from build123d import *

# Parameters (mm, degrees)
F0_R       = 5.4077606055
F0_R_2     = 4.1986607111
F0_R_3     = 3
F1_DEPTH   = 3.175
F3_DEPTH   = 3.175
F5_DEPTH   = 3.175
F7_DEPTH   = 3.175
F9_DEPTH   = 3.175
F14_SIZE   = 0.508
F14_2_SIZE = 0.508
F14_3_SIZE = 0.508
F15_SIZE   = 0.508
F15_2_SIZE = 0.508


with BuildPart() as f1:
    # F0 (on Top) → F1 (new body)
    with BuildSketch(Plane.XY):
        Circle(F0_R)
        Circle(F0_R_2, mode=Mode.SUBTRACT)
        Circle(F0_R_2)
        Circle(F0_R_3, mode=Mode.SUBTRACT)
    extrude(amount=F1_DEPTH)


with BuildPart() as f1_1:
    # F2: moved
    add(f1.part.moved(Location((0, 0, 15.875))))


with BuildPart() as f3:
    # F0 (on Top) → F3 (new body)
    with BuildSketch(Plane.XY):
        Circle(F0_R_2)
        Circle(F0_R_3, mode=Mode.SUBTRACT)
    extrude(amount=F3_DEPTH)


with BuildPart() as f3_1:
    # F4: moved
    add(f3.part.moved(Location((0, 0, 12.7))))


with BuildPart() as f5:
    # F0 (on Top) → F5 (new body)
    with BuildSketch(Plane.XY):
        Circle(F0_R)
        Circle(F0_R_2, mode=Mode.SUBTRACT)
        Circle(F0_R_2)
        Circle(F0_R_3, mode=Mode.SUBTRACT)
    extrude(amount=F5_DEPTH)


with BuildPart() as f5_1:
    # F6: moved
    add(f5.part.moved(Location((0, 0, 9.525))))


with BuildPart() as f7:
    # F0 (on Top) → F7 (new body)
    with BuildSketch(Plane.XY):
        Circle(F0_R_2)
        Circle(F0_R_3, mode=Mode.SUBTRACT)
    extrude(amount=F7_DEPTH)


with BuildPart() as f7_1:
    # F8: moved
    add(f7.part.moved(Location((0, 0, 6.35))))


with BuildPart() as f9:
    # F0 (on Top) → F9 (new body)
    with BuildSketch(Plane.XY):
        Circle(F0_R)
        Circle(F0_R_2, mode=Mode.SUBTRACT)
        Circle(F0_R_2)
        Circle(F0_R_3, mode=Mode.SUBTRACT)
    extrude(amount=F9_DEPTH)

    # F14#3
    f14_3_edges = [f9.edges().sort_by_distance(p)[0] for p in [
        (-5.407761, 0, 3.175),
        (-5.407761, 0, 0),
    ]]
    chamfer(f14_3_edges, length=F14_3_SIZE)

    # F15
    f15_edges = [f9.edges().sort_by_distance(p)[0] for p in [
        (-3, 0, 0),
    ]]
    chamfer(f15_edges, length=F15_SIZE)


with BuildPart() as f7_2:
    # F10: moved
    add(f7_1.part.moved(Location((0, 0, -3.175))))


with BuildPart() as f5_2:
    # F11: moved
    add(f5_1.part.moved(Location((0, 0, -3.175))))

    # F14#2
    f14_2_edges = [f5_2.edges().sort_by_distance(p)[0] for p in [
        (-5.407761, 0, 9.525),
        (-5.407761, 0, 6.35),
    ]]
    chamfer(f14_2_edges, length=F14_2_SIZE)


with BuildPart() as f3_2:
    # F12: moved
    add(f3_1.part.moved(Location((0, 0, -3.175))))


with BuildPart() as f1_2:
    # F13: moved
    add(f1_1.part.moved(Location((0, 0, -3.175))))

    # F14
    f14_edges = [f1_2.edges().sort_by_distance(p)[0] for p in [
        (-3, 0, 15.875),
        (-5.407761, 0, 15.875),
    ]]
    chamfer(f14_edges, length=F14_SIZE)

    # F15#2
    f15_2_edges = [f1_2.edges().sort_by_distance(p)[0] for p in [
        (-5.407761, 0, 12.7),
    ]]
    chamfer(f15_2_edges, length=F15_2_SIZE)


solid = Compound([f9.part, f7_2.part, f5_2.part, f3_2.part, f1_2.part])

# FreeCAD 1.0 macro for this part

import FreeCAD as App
import Part
import Sketcher

V = App.Vector
Q = App.Units.Quantity


def edges_at(feature, points):
    """Names of the edges that pass closest to the given points."""
    edges = feature.Shape.Edges
    near = lambda p: min(range(len(edges)), key=lambda i: edges[i].distToShape(Part.Vertex(*p))[0])
    return sorted({f"Edge{near(p) + 1}" for p in points})

doc = App.newDocument("Part")
body = doc.addObject("PartDesign::Body", "Body")

# Sketch on XY plane
sketch1 = body.newObject("Sketcher::SketchObject", "Sketch")
sketch1.AttachmentSupport = (doc.getObject("XY_Plane"), [""])
sketch1.MapMode = "FlatFace"
sketch1.addGeometry([
    Part.Circle(V(0, 0, 0), V(0, 0, 1), 5.407761),
    Part.Circle(V(0, 0, 0), V(0, 0, 1), 3),
], False)
sketch1.addConstraint([
    Sketcher.Constraint("Coincident", 0, 3, -1, 1),
    Sketcher.Constraint("Coincident", 1, 3, -1, 1),
    Sketcher.Constraint("Diameter", 1, Q("6 mm")),
    Sketcher.Constraint("Diameter", 0, Q("10.815521 mm")),
])
pad1 = body.newObject("PartDesign::Pad", "Pad")
pad1.Profile = sketch1
pad1.Length = Q("0.125 in")
body2 = doc.addObject("PartDesign::Body", "Body001")
doc.recompute()

body.Placement = App.Placement(V(0, 0, 15.875), App.Rotation(V(0, 0, 1), 0))
boolean = body2.newObject("PartDesign::Boolean", "Boolean")
boolean.Type = "Fuse"
boolean.addObjects([body])
body3 = doc.addObject("PartDesign::Body", "Body002")

# Sketch on XY plane
sketch2 = body3.newObject("Sketcher::SketchObject", "Sketch001")
sketch2.AttachmentSupport = (doc.getObject("XY_Plane002"), [""])
sketch2.MapMode = "FlatFace"
sketch2.addGeometry([
    Part.Circle(V(0, 0, 0), V(0, 0, 1), 4.198661),
    Part.Circle(V(0, 0, 0), V(0, 0, 1), 3),
], False)
sketch2.addConstraint([
    Sketcher.Constraint("Coincident", 0, 3, -1, 1),
    Sketcher.Constraint("Coincident", 1, 3, -1, 1),
    Sketcher.Constraint("Diameter", 1, Q("6 mm")),
    Sketcher.Constraint("Diameter", 0, Q("8.397321 mm")),
])
pad2 = body3.newObject("PartDesign::Pad", "Pad001")
pad2.Profile = sketch2
pad2.Length = Q("0.125 in")
body4 = doc.addObject("PartDesign::Body", "Body003")
doc.recompute()

body3.Placement = App.Placement(V(0, 0, 12.7), App.Rotation(V(0, 0, 1), 0))
boolean2 = body4.newObject("PartDesign::Boolean", "Boolean001")
boolean2.Type = "Fuse"
boolean2.addObjects([body3])
body5 = doc.addObject("PartDesign::Body", "Body004")

# Sketch on XY plane
sketch3 = body5.newObject("Sketcher::SketchObject", "Sketch002")
sketch3.AttachmentSupport = (doc.getObject("XY_Plane004"), [""])
sketch3.MapMode = "FlatFace"
sketch3.addGeometry([
    Part.Circle(V(0, 0, 0), V(0, 0, 1), 5.407761),
    Part.Circle(V(0, 0, 0), V(0, 0, 1), 3),
], False)
sketch3.addConstraint([
    Sketcher.Constraint("Coincident", 0, 3, -1, 1),
    Sketcher.Constraint("Coincident", 1, 3, -1, 1),
    Sketcher.Constraint("Diameter", 1, Q("6 mm")),
    Sketcher.Constraint("Diameter", 0, Q("10.815521 mm")),
])
pad3 = body5.newObject("PartDesign::Pad", "Pad002")
pad3.Profile = sketch3
pad3.Length = Q("0.125 in")
body6 = doc.addObject("PartDesign::Body", "Body005")
doc.recompute()

body5.Placement = App.Placement(V(0, 0, 9.525), App.Rotation(V(0, 0, 1), 0))
boolean3 = body6.newObject("PartDesign::Boolean", "Boolean002")
boolean3.Type = "Fuse"
boolean3.addObjects([body5])
body7 = doc.addObject("PartDesign::Body", "Body006")

# Sketch on XY plane
sketch4 = body7.newObject("Sketcher::SketchObject", "Sketch003")
sketch4.AttachmentSupport = (doc.getObject("XY_Plane006"), [""])
sketch4.MapMode = "FlatFace"
sketch4.addGeometry([
    Part.Circle(V(0, 0, 0), V(0, 0, 1), 4.198661),
    Part.Circle(V(0, 0, 0), V(0, 0, 1), 3),
], False)
sketch4.addConstraint([
    Sketcher.Constraint("Coincident", 0, 3, -1, 1),
    Sketcher.Constraint("Coincident", 1, 3, -1, 1),
    Sketcher.Constraint("Diameter", 1, Q("6 mm")),
    Sketcher.Constraint("Diameter", 0, Q("8.397321 mm")),
])
pad4 = body7.newObject("PartDesign::Pad", "Pad003")
pad4.Profile = sketch4
pad4.Length = Q("0.125 in")
body8 = doc.addObject("PartDesign::Body", "Body007")
doc.recompute()

body7.Placement = App.Placement(V(0, 0, 6.35), App.Rotation(V(0, 0, 1), 0))
boolean4 = body8.newObject("PartDesign::Boolean", "Boolean003")
boolean4.Type = "Fuse"
boolean4.addObjects([body7])
body9 = doc.addObject("PartDesign::Body", "Body008")

# Sketch on XY plane
sketch5 = body9.newObject("Sketcher::SketchObject", "Sketch004")
sketch5.AttachmentSupport = (doc.getObject("XY_Plane008"), [""])
sketch5.MapMode = "FlatFace"
sketch5.addGeometry([
    Part.Circle(V(0, 0, 0), V(0, 0, 1), 5.407761),
    Part.Circle(V(0, 0, 0), V(0, 0, 1), 3),
], False)
sketch5.addConstraint([
    Sketcher.Constraint("Coincident", 0, 3, -1, 1),
    Sketcher.Constraint("Coincident", 1, 3, -1, 1),
    Sketcher.Constraint("Diameter", 1, Q("6 mm")),
    Sketcher.Constraint("Diameter", 0, Q("10.815521 mm")),
])
pad5 = body9.newObject("PartDesign::Pad", "Pad004")
pad5.Profile = sketch5
pad5.Length = Q("0.125 in")
doc.recompute()

chamfer = body9.newObject("PartDesign::Chamfer", "Chamfer")
chamfer.Base = (pad5, edges_at(pad5, [(-5.408, 0, 3.175), (-5.408, 0, 0)]))
chamfer.Size = Q("0.02 in")
doc.recompute()

chamfer2 = body9.newObject("PartDesign::Chamfer", "Chamfer001")
chamfer2.Base = (chamfer, edges_at(chamfer, [(-3, 0, 0)]))
chamfer2.Size = Q("0.02 in")
body10 = doc.addObject("PartDesign::Body", "Body009")
doc.recompute()

body8.Placement = App.Placement(V(0, 0, -3.175), App.Rotation(V(0, 0, 1), 0))
boolean5 = body10.newObject("PartDesign::Boolean", "Boolean004")
boolean5.Type = "Fuse"
boolean5.addObjects([body8])
body11 = doc.addObject("PartDesign::Body", "Body010")
doc.recompute()

body6.Placement = App.Placement(V(0, 0, -3.175), App.Rotation(V(0, 0, 1), 0))
boolean6 = body11.newObject("PartDesign::Boolean", "Boolean005")
boolean6.Type = "Fuse"
boolean6.addObjects([body6])
doc.recompute()

chamfer3 = body11.newObject("PartDesign::Chamfer", "Chamfer002")
chamfer3.Base = (boolean6, edges_at(boolean6, [(-5.408, 0, 9.525), (-5.408, 0, 6.35)]))
chamfer3.Size = Q("0.02 in")
body12 = doc.addObject("PartDesign::Body", "Body011")
doc.recompute()

body4.Placement = App.Placement(V(0, 0, -3.175), App.Rotation(V(0, 0, 1), 0))
boolean7 = body12.newObject("PartDesign::Boolean", "Boolean006")
boolean7.Type = "Fuse"
boolean7.addObjects([body4])
body13 = doc.addObject("PartDesign::Body", "Body012")
doc.recompute()

body2.Placement = App.Placement(V(0, 0, -3.175), App.Rotation(V(0, 0, 1), 0))
boolean8 = body13.newObject("PartDesign::Boolean", "Boolean007")
boolean8.Type = "Fuse"
boolean8.addObjects([body2])
doc.recompute()

chamfer4 = body13.newObject("PartDesign::Chamfer", "Chamfer003")
chamfer4.Base = (boolean8, edges_at(boolean8, [(-3, 0, 15.875), (-5.408, 0, 15.875)]))
chamfer4.Size = Q("0.02 in")
doc.recompute()

chamfer5 = body13.newObject("PartDesign::Chamfer", "Chamfer004")
chamfer5.Base = (chamfer4, edges_at(chamfer4, [(-5.408, 0, 12.7)]))
chamfer5.Size = Q("0.02 in")

doc.recompute()
